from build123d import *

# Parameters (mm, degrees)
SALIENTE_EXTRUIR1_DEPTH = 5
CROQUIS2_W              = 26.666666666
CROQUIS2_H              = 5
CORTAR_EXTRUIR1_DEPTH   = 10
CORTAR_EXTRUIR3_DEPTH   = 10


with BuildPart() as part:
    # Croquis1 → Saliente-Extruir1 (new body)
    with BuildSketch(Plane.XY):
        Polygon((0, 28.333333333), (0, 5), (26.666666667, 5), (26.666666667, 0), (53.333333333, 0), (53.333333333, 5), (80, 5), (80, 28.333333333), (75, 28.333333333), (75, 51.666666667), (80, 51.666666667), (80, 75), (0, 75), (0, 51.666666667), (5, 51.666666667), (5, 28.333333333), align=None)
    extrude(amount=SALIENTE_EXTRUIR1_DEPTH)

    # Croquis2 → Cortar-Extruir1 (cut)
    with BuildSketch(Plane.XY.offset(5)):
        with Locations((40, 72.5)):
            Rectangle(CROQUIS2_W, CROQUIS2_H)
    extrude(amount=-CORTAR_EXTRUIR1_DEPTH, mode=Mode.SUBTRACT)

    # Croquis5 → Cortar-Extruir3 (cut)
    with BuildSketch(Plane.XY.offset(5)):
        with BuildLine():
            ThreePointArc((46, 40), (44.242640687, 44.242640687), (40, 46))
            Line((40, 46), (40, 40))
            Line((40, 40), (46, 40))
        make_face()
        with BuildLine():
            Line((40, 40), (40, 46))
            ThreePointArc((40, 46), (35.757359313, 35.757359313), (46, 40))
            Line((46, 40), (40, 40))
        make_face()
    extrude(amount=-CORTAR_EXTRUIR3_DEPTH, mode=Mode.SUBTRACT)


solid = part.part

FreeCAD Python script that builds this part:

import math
import FreeCAD as App
import Part
import Sketcher

V = App.Vector

doc = App.newDocument("Part")
body = doc.addObject("PartDesign::Body", "Body")

sketch1 = body.newObject("Sketcher::SketchObject", "Sketch")
sketch1.AttachmentSupport = (doc.getObject("XY_Plane"), [""])
sketch1.MapMode = "FlatFace"
sketch1.addGeometry([
    Part.LineSegment(V(0, 28.333333, 0), V(0, 5, 0)),
    Part.LineSegment(V(0, 5, 0), V(26.666667, 5, 0)),
    Part.LineSegment(V(26.666667, 5, 0), V(26.666667, 0, 0)),
    Part.LineSegment(V(26.666667, 0, 0), V(53.333333, 0, 0)),
    Part.LineSegment(V(53.333333, 0, 0), V(53.333333, 5, 0)),
    Part.LineSegment(V(53.333333, 5, 0), V(80, 5, 0)),
    Part.LineSegment(V(80, 5, 0), V(80, 28.333333, 0)),
    Part.LineSegment(V(80, 28.333333, 0), V(75, 28.333333, 0)),
    Part.LineSegment(V(75, 28.333333, 0), V(75, 51.666667, 0)),
    Part.LineSegment(V(75, 51.666667, 0), V(80, 51.666667, 0)),
    Part.LineSegment(V(80, 51.666667, 0), V(80, 75, 0)),
    Part.LineSegment(V(80, 75, 0), V(0, 75, 0)),
    Part.LineSegment(V(0, 75, 0), V(0, 51.666667, 0)),
    Part.LineSegment(V(0, 51.666667, 0), V(5, 51.666667, 0)),
    Part.LineSegment(V(5, 51.666667, 0), V(5, 28.333333, 0)),
    Part.LineSegment(V(5, 28.333333, 0), V(0, 28.333333, 0)),
], False)
sketch1.addConstraint([
    Sketcher.Constraint("Coincident", 0, 2, 1, 1),
    Sketcher.Constraint("Coincident", 1, 2, 2, 1),
    Sketcher.Constraint("Coincident", 2, 2, 3, 1),
    Sketcher.Constraint("Coincident", 3, 2, 4, 1),
    Sketcher.Constraint("Coincident", 4, 2, 5, 1),
    Sketcher.Constraint("Coincident", 5, 2, 6, 1),
    Sketcher.Constraint("Coincident", 6, 2, 7, 1),
    Sketcher.Constraint("Coincident", 7, 2, 8, 1),
    Sketcher.Constraint("Coincident", 8, 2, 9, 1),
    Sketcher.Constraint("Coincident", 9, 2, 10, 1),
    Sketcher.Constraint("Coincident", 10, 2, 11, 1),
    Sketcher.Constraint("Coincident", 11, 2, 12, 1),
    Sketcher.Constraint("Coincident", 12, 2, 13, 1),
    Sketcher.Constraint("Coincident", 13, 2, 14, 1),
    Sketcher.Constraint("Coincident", 14, 2, 15, 1),
    Sketcher.Constraint("Coincident", 15, 2, 0, 1),
    Sketcher.Constraint("Vertical", 0),
    Sketcher.Constraint("Horizontal", 1),
    Sketcher.Constraint("Vertical", 2),
    Sketcher.Constraint("Horizontal", 3),
    Sketcher.Constraint("Vertical", 4),
    Sketcher.Constraint("Horizontal", 5),
    Sketcher.Constraint("Vertical", 6),
    Sketcher.Constraint("Horizontal", 7),
    Sketcher.Constraint("Vertical", 8),
    Sketcher.Constraint("Horizontal", 9),
    Sketcher.Constraint("Vertical", 10),
    Sketcher.Constraint("Horizontal", 11),
    Sketcher.Constraint("Vertical", 12),
    Sketcher.Constraint("Horizontal", 13),
    Sketcher.Constraint("Vertical", 14),
    Sketcher.Constraint("Horizontal", 15),
    Sketcher.Constraint("PointOnObject", 0, 2, -2),
    Sketcher.Constraint("PointOnObject", 2, 2, -1),
    Sketcher.Constraint("PointOnObject", 11, 2, -2),
    Sketcher.Constraint("Horizontal", 1, 2, 4, 2),
    Sketcher.Constraint("Horizontal", 9, 2, 12, 2),
    Sketcher.Constraint("Horizontal", 7, 2, 14, 2),
    Sketcher.Constraint("Vertical", 6, 2, 9, 2),
    Sketcher.Constraint("Equal", 1, 3),
    Sketcher.Constraint("Equal", 3, 5),
    Sketcher.Constraint("Equal", 9, 13),
    Sketcher.Constraint("Equal", 15, 2),
    Sketcher.Constraint("Equal", 6, 8),
    Sketcher.Constraint("Equal", 8, 10),
    Sketcher.Constraint("DistanceX", 7, 2, 7, 1, 5.0),
    Sketcher.Constraint("DistanceX", 11, 2, 11, 1, 80.0),
    Sketcher.Constraint("DistanceY", -1, 1, 10, 2, 75.0),
])
pad1 = body.newObject("PartDesign::Pad", "Pad")
pad1.Profile = sketch1
pad1.Length = 5

sketch2 = body.newObject("Sketcher::SketchObject", "Sketch001")
sketch2.AttachmentSupport = (doc.getObject("XY_Plane"), [""])
sketch2.MapMode = "FlatFace"
sketch2.AttachmentOffset = App.Placement(V(0, 0, 5), App.Rotation())
sketch2.addGeometry([
    Part.LineSegment(V(26.666667, 75, 0), V(26.666667, 70, 0)),
    Part.LineSegment(V(26.666667, 70, 0), V(53.333333, 70, 0)),
    Part.LineSegment(V(53.333333, 70, 0), V(53.333333, 75, 0)),
    Part.LineSegment(V(53.333333, 75, 0), V(26.666667, 75, 0)),
], False)
sketch2.addConstraint([
    Sketcher.Constraint("Coincident", 0, 2, 1, 1),
    Sketcher.Constraint("Coincident", 1, 2, 2, 1),
    Sketcher.Constraint("Coincident", 2, 2, 3, 1),
    Sketcher.Constraint("Coincident", 3, 2, 0, 1),
    Sketcher.Constraint("Vertical", 0),
    Sketcher.Constraint("Horizontal", 1),
    Sketcher.Constraint("Vertical", 2),
    Sketcher.Constraint("Horizontal", 3),
    Sketcher.Constraint("DistanceY", 0, 2, 0, 1, 5.0),
    Sketcher.Constraint("DistanceY", -1, 1, 0, 2, 70.0),
    Sketcher.Constraint("DistanceX", 1, 1, 1, 2, 26.666667),
    Sketcher.Constraint("DistanceX", -1, 1, 0, 2, 26.666667),
])
pocket1 = body.newObject("PartDesign::Pocket", "Pocket")
pocket1.Profile = sketch2
pocket1.Length = 10

sketch3 = body.newObject("Sketcher::SketchObject", "Sketch002")
sketch3.AttachmentSupport = (doc.getObject("XY_Plane"), [""])
sketch3.MapMode = "FlatFace"
sketch3.AttachmentOffset = App.Placement(V(0, 0, 5), App.Rotation())
sketch3.addGeometry([
    Part.ArcOfCircle(Part.Circle(V(40, 40, 0), V(0, 0, 1), 6), math.radians(0), math.radians(90)),
    Part.ArcOfCircle(Part.Circle(V(40, 40, 0), V(0, 0, 1), 6), math.radians(90), math.radians(360)),
], False)
sketch3.addConstraint([
    Sketcher.Constraint("Tangent", 0, 1, 1, 2),
    Sketcher.Constraint("Coincident", 1, 1, 0, 2),
    Sketcher.Constraint("Horizontal", 1, 3, 0, 1),
    Sketcher.Constraint("Vertical", 0, 3, 1, 1),
    Sketcher.Constraint("Radius", 0, 6.0),
    Sketcher.Constraint("DistanceX", -1, 1, 0, 3, 40.0),
    Sketcher.Constraint("DistanceY", -1, 1, 0, 3, 40.0),
])
pocket2 = body.newObject("PartDesign::Pocket", "Pocket001")
pocket2.Profile = sketch3
pocket2.Length = 10

doc.recompute()
